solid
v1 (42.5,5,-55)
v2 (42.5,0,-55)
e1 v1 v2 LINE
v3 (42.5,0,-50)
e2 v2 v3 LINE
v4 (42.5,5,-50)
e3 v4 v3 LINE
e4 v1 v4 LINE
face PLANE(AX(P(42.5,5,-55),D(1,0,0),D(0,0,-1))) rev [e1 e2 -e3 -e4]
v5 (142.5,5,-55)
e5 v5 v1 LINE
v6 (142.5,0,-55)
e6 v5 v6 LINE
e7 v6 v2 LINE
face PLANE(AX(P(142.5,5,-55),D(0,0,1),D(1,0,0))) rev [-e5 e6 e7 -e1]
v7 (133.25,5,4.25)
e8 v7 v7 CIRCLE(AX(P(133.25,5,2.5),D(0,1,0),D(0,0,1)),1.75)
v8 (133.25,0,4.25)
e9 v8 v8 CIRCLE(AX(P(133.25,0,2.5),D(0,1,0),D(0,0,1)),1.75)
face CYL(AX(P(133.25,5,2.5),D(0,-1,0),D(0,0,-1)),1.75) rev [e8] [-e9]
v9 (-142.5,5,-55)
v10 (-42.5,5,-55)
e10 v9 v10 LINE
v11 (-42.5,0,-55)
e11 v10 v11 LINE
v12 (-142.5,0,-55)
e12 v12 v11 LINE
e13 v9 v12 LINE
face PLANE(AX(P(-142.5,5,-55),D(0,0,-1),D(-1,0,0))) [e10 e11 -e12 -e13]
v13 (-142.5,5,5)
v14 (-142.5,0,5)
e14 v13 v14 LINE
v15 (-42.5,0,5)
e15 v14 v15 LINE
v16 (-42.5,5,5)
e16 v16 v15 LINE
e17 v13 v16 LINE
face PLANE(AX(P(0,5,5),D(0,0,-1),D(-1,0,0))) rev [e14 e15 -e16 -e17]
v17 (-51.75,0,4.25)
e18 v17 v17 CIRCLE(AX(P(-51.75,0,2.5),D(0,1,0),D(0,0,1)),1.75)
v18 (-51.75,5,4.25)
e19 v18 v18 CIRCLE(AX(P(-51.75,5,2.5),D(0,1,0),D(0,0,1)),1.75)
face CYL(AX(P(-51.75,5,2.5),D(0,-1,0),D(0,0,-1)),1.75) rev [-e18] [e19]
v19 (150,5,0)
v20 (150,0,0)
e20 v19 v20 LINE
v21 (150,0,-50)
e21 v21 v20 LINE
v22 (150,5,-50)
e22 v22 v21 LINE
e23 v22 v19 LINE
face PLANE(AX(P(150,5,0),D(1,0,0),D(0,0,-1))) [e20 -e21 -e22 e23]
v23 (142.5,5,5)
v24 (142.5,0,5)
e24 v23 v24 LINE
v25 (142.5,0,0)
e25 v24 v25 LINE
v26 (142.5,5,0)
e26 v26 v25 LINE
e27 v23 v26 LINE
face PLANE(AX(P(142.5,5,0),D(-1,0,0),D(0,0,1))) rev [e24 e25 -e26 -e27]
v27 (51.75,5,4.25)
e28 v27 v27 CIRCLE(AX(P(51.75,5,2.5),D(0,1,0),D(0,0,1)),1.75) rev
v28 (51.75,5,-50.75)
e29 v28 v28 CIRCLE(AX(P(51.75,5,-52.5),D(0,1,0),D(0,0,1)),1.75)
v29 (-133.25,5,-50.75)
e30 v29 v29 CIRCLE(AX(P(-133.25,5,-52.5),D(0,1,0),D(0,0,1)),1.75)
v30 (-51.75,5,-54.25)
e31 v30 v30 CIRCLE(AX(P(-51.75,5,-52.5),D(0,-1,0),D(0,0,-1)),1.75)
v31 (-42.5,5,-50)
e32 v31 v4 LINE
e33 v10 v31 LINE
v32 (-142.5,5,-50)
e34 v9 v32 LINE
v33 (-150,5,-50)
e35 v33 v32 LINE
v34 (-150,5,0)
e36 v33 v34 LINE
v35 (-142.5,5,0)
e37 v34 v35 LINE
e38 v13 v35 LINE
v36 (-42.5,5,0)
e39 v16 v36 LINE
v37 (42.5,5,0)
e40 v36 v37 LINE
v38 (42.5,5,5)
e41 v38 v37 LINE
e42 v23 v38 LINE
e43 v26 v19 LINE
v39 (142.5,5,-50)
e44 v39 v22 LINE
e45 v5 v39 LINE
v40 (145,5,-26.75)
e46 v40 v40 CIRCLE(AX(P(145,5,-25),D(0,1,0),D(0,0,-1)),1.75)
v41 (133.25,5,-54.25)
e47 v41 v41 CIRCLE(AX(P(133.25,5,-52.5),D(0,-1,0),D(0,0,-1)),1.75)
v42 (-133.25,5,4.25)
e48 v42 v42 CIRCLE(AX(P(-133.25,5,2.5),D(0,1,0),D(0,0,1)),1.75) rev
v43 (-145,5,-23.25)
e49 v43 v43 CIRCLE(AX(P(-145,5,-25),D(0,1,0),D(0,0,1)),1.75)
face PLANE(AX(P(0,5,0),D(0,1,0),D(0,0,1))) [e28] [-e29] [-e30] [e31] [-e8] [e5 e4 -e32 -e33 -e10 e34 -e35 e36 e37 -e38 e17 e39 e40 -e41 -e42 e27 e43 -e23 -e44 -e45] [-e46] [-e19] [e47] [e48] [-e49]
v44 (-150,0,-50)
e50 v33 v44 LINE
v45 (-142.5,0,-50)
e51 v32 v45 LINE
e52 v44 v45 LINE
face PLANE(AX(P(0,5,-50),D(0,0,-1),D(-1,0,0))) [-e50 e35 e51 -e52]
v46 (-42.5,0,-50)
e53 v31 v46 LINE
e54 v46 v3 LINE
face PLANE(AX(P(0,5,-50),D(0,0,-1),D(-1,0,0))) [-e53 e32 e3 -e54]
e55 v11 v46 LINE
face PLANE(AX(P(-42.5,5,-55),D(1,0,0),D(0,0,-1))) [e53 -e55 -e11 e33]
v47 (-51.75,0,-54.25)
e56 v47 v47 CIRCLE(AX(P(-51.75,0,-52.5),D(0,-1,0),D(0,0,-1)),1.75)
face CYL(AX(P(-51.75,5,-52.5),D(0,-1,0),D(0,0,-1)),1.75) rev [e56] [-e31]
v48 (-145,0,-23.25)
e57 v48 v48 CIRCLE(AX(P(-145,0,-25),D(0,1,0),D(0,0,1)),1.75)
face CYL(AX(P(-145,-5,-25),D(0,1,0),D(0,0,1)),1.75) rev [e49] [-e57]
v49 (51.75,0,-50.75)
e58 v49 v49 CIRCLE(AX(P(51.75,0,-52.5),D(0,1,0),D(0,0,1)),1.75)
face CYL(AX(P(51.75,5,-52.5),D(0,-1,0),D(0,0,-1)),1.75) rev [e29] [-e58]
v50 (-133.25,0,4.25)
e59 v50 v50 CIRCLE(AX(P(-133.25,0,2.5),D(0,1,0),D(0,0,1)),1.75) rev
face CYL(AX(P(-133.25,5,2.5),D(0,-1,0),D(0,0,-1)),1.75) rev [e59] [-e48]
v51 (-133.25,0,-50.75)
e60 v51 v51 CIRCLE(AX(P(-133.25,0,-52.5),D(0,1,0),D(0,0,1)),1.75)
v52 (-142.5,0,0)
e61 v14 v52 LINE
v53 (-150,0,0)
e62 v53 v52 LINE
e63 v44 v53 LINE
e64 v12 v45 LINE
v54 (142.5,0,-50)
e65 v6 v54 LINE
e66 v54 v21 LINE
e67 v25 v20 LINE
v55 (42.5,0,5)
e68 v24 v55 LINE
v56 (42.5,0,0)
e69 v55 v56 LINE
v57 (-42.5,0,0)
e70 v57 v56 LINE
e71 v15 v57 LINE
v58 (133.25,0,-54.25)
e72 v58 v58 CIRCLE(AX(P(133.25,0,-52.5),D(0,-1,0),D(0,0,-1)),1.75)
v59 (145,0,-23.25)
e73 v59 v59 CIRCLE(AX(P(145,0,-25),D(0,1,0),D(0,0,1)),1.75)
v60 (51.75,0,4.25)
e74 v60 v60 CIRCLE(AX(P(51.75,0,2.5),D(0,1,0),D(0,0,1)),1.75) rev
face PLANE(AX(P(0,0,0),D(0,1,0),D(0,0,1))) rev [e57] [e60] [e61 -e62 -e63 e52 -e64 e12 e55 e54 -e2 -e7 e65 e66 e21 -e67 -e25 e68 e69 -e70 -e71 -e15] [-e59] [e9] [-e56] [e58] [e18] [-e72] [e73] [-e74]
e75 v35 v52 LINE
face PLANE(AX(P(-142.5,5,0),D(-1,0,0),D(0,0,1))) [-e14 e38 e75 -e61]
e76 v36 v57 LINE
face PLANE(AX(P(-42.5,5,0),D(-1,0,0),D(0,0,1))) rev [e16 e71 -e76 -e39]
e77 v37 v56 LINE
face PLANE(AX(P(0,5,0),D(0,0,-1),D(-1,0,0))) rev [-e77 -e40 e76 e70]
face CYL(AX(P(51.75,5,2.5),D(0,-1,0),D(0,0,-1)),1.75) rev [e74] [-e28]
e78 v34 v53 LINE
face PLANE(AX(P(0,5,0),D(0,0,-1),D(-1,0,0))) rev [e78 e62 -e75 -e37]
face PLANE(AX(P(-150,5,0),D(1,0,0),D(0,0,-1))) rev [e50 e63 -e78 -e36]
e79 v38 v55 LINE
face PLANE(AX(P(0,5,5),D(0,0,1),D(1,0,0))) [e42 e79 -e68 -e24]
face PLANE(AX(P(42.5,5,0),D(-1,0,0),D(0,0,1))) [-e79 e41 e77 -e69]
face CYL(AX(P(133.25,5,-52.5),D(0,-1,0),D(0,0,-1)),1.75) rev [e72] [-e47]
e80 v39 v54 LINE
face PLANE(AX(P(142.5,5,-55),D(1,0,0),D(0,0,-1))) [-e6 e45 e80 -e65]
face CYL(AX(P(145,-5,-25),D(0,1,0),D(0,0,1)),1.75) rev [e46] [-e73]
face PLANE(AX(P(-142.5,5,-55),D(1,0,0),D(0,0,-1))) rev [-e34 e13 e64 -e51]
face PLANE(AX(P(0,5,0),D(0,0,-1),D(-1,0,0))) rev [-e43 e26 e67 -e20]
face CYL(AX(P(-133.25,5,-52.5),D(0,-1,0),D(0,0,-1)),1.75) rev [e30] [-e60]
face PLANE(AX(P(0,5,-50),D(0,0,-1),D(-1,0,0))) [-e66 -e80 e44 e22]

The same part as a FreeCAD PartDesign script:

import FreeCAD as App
import Part
import Sketcher

doc = App.newDocument("Part")
body = doc.addObject("PartDesign::Body", "Body")

# Sketch on XZ plane
sketch1 = body.newObject("Sketcher::SketchObject", "Sketch")
sketch1.AttachmentSupport = (doc.getObject("XZ_Plane"), [""])
sketch1.MapMode = "FlatFace"
sketch1.addGeometry(Part.LineSegment(App.Vector(-142.5, 0, 0), App.Vector(-142.5, 5, 0)), False)
sketch1.addGeometry(Part.LineSegment(App.Vector(-142.5, 5, 0), App.Vector(-42.5, 5, 0)), False)
sketch1.addGeometry(Part.LineSegment(App.Vector(-42.5, 5, 0), App.Vector(-42.5, 0, 0)), False)
sketch1.addGeometry(Part.LineSegment(App.Vector(-42.5, 0, 0), App.Vector(42.5, 0, 0)), False)
sketch1.addGeometry(Part.LineSegment(App.Vector(42.5, 0, 0), App.Vector(42.5, 5, 0)), False)
sketch1.addGeometry(Part.LineSegment(App.Vector(42.5, 5, 0), App.Vector(142.5, 5, 0)), False)
sketch1.addGeometry(Part.LineSegment(App.Vector(142.5, 5, 0), App.Vector(142.5, 0, 0)), False)
sketch1.addGeometry(Part.LineSegment(App.Vector(142.5, 0, 0), App.Vector(150, 0, 0)), False)
sketch1.addGeometry(Part.LineSegment(App.Vector(150, 0, 0), App.Vector(150, -50, 0)), False)
sketch1.addGeometry(Part.LineSegment(App.Vector(150, -50, 0), App.Vector(142.5, -50, 0)), False)
sketch1.addGeometry(Part.LineSegment(App.Vector(142.5, -50, 0), App.Vector(142.5, -55, 0)), False)
sketch1.addGeometry(Part.LineSegment(App.Vector(142.5, -55, 0), App.Vector(42.5, -55, 0)), False)
sketch1.addGeometry(Part.LineSegment(App.Vector(42.5, -55, 0), App.Vector(42.5, -50, 0)), False)
sketch1.addGeometry(Part.LineSegment(App.Vector(42.5, -50, 0), App.Vector(-42.5, -50, 0)), False)
sketch1.addGeometry(Part.LineSegment(App.Vector(-42.5, -50, 0), App.Vector(-42.5, -55, 0)), False)
sketch1.addGeometry(Part.LineSegment(App.Vector(-42.5, -55, 0), App.Vector(-142.5, -55, 0)), False)
sketch1.addGeometry(Part.LineSegment(App.Vector(-142.5, -55, 0), App.Vector(-142.5, -50, 0)), False)
sketch1.addGeometry(Part.LineSegment(App.Vector(-142.5, -50, 0), App.Vector(-150, -50, 0)), False)
sketch1.addGeometry(Part.LineSegment(App.Vector(-150, -50, 0), App.Vector(-150, 0, 0)), False)
sketch1.addGeometry(Part.LineSegment(App.Vector(-150, 0, 0), App.Vector(-142.5, 0, 0)), False)
sketch1.addGeometry(Part.Circle(App.Vector(-133.2, 2.5, 0), App.Vector(0, 0, 1), 1.8), False)
sketch1.addGeometry(Part.Circle(App.Vector(-51.8, 2.5, 0), App.Vector(0, 0, 1), 1.8), False)
sketch1.addGeometry(Part.Circle(App.Vector(133.2, 2.5, 0), App.Vector(0, 0, 1), 1.8), False)
sketch1.addGeometry(Part.Circle(App.Vector(51.8, 2.5, 0), App.Vector(0, 0, 1), 1.8), False)
sketch1.addGeometry(Part.Circle(App.Vector(-51.8, -52.5, 0), App.Vector(0, 0, 1), 1.8), False)
sketch1.addGeometry(Part.Circle(App.Vector(-133.2, -52.5, 0), App.Vector(0, 0, 1), 1.8), False)
sketch1.addGeometry(Part.Circle(App.Vector(133.2, -52.5, 0), App.Vector(0, 0, 1), 1.8), False)
sketch1.addGeometry(Part.Circle(App.Vector(51.8, -52.5, 0), App.Vector(0, 0, 1), 1.8), False)
sketch1.addConstraint(Sketcher.Constraint("Coincident", 0, 2, 1, 1))
sketch1.addConstraint(Sketcher.Constraint("Coincident", 1, 2, 2, 1))
sketch1.addConstraint(Sketcher.Constraint("Coincident", 2, 2, 3, 1))
sketch1.addConstraint(Sketcher.Constraint("Coincident", 3, 2, 4, 1))
sketch1.addConstraint(Sketcher.Constraint("Coincident", 4, 2, 5, 1))
sketch1.addConstraint(Sketcher.Constraint("Coincident", 5, 2, 6, 1))
sketch1.addConstraint(Sketcher.Constraint("Coincident", 6, 2, 7, 1))
sketch1.addConstraint(Sketcher.Constraint("Coincident", 7, 2, 8, 1))
sketch1.addConstraint(Sketcher.Constraint("Coincident", 8, 2, 9, 1))
sketch1.addConstraint(Sketcher.Constraint("Coincident", 9, 2, 10, 1))
sketch1.addConstraint(Sketcher.Constraint("Coincident", 10, 2, 11, 1))
sketch1.addConstraint(Sketcher.Constraint("Coincident", 11, 2, 12, 1))
sketch1.addConstraint(Sketcher.Constraint("Coincident", 12, 2, 13, 1))
sketch1.addConstraint(Sketcher.Constraint("Coincident", 13, 2, 14, 1))
sketch1.addConstraint(Sketcher.Constraint("Coincident", 14, 2, 15, 1))
sketch1.addConstraint(Sketcher.Constraint("Coincident", 15, 2, 16, 1))
sketch1.addConstraint(Sketcher.Constraint("Coincident", 16, 2, 17, 1))
sketch1.addConstraint(Sketcher.Constraint("Coincident", 17, 2, 18, 1))
sketch1.addConstraint(Sketcher.Constraint("Coincident", 18, 2, 19, 1))
sketch1.addConstraint(Sketcher.Constraint("Coincident", 19, 2, 0, 1))
sketch1.addConstraint(Sketcher.Constraint("Vertical", 0))
sketch1.addConstraint(Sketcher.Constraint("Horizontal", 1))
sketch1.addConstraint(Sketcher.Constraint("Vertical", 2))
sketch1.addConstraint(Sketcher.Constraint("Horizontal", 3))
sketch1.addConstraint(Sketcher.Constraint("Vertical", 4))
sketch1.addConstraint(Sketcher.Constraint("Horizontal", 5))
sketch1.addConstraint(Sketcher.Constraint("Vertical", 6))
sketch1.addConstraint(Sketcher.Constraint("Horizontal", 7))
sketch1.addConstraint(Sketcher.Constraint("Vertical", 8))
sketch1.addConstraint(Sketcher.Constraint("Horizontal", 9))
sketch1.addConstraint(Sketcher.Constraint("Vertical", 10))
sketch1.addConstraint(Sketcher.Constraint("Horizontal", 11))
sketch1.addConstraint(Sketcher.Constraint("Vertical", 12))
sketch1.addConstraint(Sketcher.Constraint("Horizontal", 13))
sketch1.addConstraint(Sketcher.Constraint("Vertical", 14))
sketch1.addConstraint(Sketcher.Constraint("Horizontal", 15))
sketch1.addConstraint(Sketcher.Constraint("Vertical", 16))
sketch1.addConstraint(Sketcher.Constraint("Horizontal", 17))
sketch1.addConstraint(Sketcher.Constraint("Vertical", 18))
sketch1.addConstraint(Sketcher.Constraint("Horizontal", 19))
sketch1.addConstraint(Sketcher.Constraint("Equal", 20, 21))
sketch1.addConstraint(Sketcher.Constraint("Equal", 21, 22))
sketch1.addConstraint(Sketcher.Constraint("Equal", 22, 23))
sketch1.addConstraint(Sketcher.Constraint("Equal", 23, 24))
sketch1.addConstraint(Sketcher.Constraint("Equal", 24, 25))
sketch1.addConstraint(Sketcher.Constraint("Equal", 25, 26))
sketch1.addConstraint(Sketcher.Constraint("Equal", 26, 27))
sketch1.addConstraint(Sketcher.Constraint("Symmetric", 2, 2, 3, 2, -1, 1))
sketch1.addConstraint(Sketcher.Constraint("Symmetric", 7, 2, 18, 2, -1, 1))
sketch1.addConstraint(Sketcher.Constraint("Symmetric", 20, 3, 22, 3, -2))
sketch1.addConstraint(Sketcher.Constraint("Symmetric", 21, 3, 23, 3, -2))
sketch1.addConstraint(Sketcher.Constraint("Symmetric", 25, 3, 26, 3, -2))
sketch1.addConstraint(Sketcher.Constraint("Symmetric", 24, 3, 27, 3, -2))
sketch1.addConstraint(Sketcher.Constraint("Symmetric", 0, 2, 5, 2, -2))
sketch1.addConstraint(Sketcher.Constraint("Symmetric", 11, 2, 14, 2, -2))
sketch1.addConstraint(Sketcher.Constraint("Symmetric", 9, 2, 16, 2, -2))
sketch1.addConstraint(Sketcher.Constraint("PointOnObject", 6, 2, -1))
sketch1.addConstraint(Sketcher.Constraint("Horizontal", 20, 3, 21, 3))
sketch1.addConstraint(Sketcher.Constraint("Horizontal", 24, 3, 25, 3))
sketch1.addConstraint(Sketcher.Constraint("Horizontal", 9, 2, 12, 2))
sketch1.addConstraint(Sketcher.Constraint("Vertical", 21, 3, 24, 3))
sketch1.addConstraint(Sketcher.Constraint("Vertical", 20, 3, 25, 3))
sketch1.addConstraint(Sketcher.Constraint("Vertical", 6, 2, 9, 2))
sketch1.addConstraint(Sketcher.Constraint("Vertical", 4, 2, 11, 2))
sketch1.addConstraint(Sketcher.Constraint("Equal", 6, 10))
sketch1.addConstraint(Sketcher.Constraint("Diameter", 20, 3.5))
sketch1.addConstraint(Sketcher.Constraint("DistanceX", 1, 1, 1, 2, 100.0))
sketch1.addConstraint(Sketcher.Constraint("DistanceX", 3, 1, 3, 2, 85.0))
sketch1.addConstraint(Sketcher.Constraint("DistanceY", 0, 1, 0, 2, 5.0))
sketch1.addConstraint(Sketcher.Constraint("DistanceY", 8, 2, 8, 1, 50.0))
sketch1.addConstraint(Sketcher.Constraint("DistanceX", 7, 1, 7, 2, 7.5))
sketch1.addConstraint(Sketcher.Constraint("DistanceX", 21, 3, 22, 3, 185.0))
sketch1.addConstraint(Sketcher.Constraint("DistanceY", 24, 3, 21, 3, 55.0))
sketch1.addConstraint(Sketcher.Constraint("DistanceY", -1, 1, 20, 3, 2.5))
sketch1.addConstraint(Sketcher.Constraint("DistanceX", 20, 3, 21, 3, 81.5))
pad1 = body.newObject("PartDesign::Pad", "Pad")
pad1.Profile = sketch1
pad1.Length = 5
pad1.Reversed = True

# Sketch on XZ plane
sketch2 = body.newObject("Sketcher::SketchObject", "Sketch001")
sketch2.AttachmentSupport = (doc.getObject("XZ_Plane"), [""])
sketch2.MapMode = "FlatFace"
sketch2.AttachmentOffset = App.Placement(App.Vector(0, 0, -5), App.Rotation())
sketch2.addGeometry(Part.Circle(App.Vector(-145, -25, 0), App.Vector(0, 0, 1), 1.8), False)
sketch2.addGeometry(Part.Circle(App.Vector(145, -25, 0), App.Vector(0, 0, 1), 1.8), False)
sketch2.addConstraint(Sketcher.Constraint("Equal", 0, 1))
sketch2.addConstraint(Sketcher.Constraint("Symmetric", 0, 3, 1, 3, -2))
sketch2.addConstraint(Sketcher.Constraint("Diameter", 0, 3.5))
sketch2.addConstraint(Sketcher.Constraint("DistanceX", 0, 3, -1, 1, 145.0))
sketch2.addConstraint(Sketcher.Constraint("DistanceY", 0, 3, -1, 1, 25.0))
pocket1 = body.newObject("PartDesign::Pocket", "Pocket")
pocket1.Profile = sketch2
pocket1.Length = 10
pocket1.Reversed = True

doc.recompute()
